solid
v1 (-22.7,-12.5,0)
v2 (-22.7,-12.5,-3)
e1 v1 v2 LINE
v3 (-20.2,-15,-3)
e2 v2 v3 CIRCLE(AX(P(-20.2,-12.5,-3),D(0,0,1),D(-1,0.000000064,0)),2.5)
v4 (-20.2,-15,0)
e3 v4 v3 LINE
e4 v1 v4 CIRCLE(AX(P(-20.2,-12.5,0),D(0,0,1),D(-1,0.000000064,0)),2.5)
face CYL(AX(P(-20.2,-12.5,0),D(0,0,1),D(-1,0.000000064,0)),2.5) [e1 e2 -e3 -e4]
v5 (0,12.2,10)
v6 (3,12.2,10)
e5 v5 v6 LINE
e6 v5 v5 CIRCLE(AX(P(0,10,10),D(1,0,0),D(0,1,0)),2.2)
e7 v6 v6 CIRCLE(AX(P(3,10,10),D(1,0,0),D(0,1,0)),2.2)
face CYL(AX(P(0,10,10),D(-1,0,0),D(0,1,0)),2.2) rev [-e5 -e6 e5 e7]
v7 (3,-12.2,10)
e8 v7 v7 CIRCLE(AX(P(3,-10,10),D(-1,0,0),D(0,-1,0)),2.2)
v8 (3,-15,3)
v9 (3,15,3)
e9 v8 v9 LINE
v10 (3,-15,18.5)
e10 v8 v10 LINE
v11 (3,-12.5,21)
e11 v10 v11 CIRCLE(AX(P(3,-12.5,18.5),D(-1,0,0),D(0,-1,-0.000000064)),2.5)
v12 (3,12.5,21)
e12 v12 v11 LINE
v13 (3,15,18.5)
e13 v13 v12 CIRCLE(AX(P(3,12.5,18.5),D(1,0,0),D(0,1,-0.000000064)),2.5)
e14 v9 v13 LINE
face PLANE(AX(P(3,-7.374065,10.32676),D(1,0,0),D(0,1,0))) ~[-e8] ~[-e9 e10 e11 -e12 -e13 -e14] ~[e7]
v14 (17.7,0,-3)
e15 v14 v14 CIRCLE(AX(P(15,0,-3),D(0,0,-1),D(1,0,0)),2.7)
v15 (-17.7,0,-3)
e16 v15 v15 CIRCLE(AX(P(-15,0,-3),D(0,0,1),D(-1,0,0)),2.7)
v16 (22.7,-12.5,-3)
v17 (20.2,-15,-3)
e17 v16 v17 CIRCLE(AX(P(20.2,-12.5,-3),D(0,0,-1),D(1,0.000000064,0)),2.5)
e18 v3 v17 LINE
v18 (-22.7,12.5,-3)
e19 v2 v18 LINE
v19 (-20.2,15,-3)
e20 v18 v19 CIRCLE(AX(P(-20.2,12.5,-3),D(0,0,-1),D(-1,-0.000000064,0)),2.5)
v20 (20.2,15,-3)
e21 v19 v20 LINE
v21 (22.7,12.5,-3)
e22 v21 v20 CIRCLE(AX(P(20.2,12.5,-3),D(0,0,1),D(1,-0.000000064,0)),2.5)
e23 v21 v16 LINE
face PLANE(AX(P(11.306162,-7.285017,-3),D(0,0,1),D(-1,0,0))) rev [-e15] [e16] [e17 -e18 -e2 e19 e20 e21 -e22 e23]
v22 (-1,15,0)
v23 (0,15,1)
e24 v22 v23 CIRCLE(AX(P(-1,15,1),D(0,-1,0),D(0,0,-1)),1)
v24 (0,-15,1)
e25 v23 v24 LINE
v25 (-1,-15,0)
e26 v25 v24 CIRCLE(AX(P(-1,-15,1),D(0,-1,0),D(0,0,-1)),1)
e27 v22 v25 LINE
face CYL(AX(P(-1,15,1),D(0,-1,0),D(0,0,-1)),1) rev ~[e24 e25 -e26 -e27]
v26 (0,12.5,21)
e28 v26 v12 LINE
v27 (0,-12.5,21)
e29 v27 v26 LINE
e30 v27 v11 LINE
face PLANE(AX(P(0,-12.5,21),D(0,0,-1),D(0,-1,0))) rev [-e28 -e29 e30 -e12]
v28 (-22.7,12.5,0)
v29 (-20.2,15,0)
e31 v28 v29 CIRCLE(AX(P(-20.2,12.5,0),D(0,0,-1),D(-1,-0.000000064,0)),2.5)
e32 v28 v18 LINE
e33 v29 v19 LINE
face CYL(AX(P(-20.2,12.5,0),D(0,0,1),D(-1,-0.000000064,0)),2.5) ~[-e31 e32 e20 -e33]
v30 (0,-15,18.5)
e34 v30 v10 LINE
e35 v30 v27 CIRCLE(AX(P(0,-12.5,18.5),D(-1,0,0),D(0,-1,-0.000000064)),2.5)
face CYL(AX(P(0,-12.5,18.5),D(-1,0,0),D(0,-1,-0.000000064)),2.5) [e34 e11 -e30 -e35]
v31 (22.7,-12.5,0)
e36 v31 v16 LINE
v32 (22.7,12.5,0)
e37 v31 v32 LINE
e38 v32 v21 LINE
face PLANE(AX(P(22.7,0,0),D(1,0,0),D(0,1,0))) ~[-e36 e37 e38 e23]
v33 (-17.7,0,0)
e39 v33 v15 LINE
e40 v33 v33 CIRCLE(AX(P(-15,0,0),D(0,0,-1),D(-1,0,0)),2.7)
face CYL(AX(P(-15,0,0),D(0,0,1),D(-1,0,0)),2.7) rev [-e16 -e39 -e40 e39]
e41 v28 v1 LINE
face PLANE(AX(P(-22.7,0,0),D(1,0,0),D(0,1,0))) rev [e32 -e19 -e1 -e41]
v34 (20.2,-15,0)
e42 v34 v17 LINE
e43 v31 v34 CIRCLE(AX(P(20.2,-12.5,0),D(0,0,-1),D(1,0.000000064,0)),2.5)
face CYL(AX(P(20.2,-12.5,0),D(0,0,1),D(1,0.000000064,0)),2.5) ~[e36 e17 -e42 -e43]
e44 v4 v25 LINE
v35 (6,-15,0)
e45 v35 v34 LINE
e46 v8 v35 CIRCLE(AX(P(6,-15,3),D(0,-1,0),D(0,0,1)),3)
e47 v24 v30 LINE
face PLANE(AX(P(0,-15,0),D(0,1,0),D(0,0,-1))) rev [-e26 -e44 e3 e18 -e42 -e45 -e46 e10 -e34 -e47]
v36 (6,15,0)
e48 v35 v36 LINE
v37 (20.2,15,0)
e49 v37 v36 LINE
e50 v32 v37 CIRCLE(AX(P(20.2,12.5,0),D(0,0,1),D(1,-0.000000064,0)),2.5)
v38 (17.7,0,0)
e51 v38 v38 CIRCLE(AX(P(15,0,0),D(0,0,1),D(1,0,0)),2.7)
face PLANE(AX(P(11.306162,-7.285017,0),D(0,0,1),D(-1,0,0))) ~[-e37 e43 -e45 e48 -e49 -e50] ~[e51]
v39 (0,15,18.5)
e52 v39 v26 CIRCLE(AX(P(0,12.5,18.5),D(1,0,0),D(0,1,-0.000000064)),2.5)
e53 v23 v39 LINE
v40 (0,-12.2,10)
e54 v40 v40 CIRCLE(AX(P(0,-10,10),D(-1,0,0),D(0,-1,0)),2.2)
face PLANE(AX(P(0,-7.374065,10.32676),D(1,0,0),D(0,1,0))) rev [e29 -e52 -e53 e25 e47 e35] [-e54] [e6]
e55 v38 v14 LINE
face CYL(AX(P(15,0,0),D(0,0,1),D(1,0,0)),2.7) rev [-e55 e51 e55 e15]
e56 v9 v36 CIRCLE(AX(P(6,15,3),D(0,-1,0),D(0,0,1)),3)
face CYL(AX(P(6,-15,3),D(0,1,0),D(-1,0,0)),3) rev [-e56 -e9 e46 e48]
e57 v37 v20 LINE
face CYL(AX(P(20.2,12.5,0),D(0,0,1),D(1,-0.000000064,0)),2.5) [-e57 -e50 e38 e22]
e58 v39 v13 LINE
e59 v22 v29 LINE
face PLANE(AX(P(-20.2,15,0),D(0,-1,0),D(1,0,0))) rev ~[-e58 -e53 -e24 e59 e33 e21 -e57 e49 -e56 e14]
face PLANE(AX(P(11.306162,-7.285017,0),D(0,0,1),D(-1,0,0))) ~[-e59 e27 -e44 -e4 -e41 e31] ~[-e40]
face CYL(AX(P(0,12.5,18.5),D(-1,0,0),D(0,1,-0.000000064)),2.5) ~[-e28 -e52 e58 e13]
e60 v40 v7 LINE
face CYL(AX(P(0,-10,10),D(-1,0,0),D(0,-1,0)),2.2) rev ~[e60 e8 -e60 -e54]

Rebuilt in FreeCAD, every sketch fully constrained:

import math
import FreeCAD as App
import Part
import Sketcher


def edges_at(feature, points):
    """Names of the edges that pass closest to the given points."""
    edges = feature.Shape.Edges
    near = lambda p: min(range(len(edges)), key=lambda i: edges[i].distToShape(Part.Vertex(*p))[0])
    return sorted({f"Edge{near(p) + 1}" for p in points})

doc = App.newDocument("Part")
body = doc.addObject("PartDesign::Body", "Body")

sketch1 = doc.addObject("Sketcher::SketchObject", "Sketch")
body.addObject(sketch1)
sketch1.AttachmentSupport = (doc.XY_Plane, [""])
sketch1.MapMode = "FlatFace"
sketch1.addGeometry([
    Part.LineSegment(App.Vector(0, 0, 0), App.Vector(12.3, 0, 0)),
    Part.ArcOfCircle(Part.Circle(App.Vector(15, 0, 0), App.Vector(0, 0, 1), 2.7), math.radians(0), math.radians(180)),
    Part.LineSegment(App.Vector(17.7, 0, 0), App.Vector(22.7, 0, 0)),
    Part.LineSegment(App.Vector(22.7, 0, 0), App.Vector(22.7, 12.5, 0)),
    Part.ArcOfCircle(Part.Circle(App.Vector(20.2, 12.5, 0), App.Vector(0, 0, 1), 2.5), math.radians(-0.000004), math.radians(90.000004)),
    Part.LineSegment(App.Vector(20.2, 15, 0), App.Vector(0, 15, 0)),
    Part.LineSegment(App.Vector(0, 15, 0), App.Vector(0, 0, 0)),
], False)
sketch1.addConstraint([
    Sketcher.Constraint("Coincident", 0, 2, 1, 2),
    Sketcher.Constraint("Coincident", 1, 1, 2, 1),
    Sketcher.Constraint("Coincident", 2, 2, 3, 1),
    Sketcher.Constraint("Tangent", 3, 2, 4, 1),
    Sketcher.Constraint("Tangent", 4, 2, 5, 1),
    Sketcher.Constraint("Coincident", 5, 2, 6, 1),
    Sketcher.Constraint("Coincident", 6, 2, 0, 1),
    Sketcher.Constraint("Horizontal", 0),
    Sketcher.Constraint("Horizontal", 2),
    Sketcher.Constraint("Vertical", 3),
    Sketcher.Constraint("Horizontal", 5),
    Sketcher.Constraint("Vertical", 6),
    Sketcher.Constraint("Coincident", 6, 2, -1, 1),
    Sketcher.Constraint("PointOnObject", 1, 3, -1),
    Sketcher.Constraint("PointOnObject", 1, 1, -1),
    Sketcher.Constraint("Radius", 1, 2.7),
    Sketcher.Constraint("Radius", 4, 2.5),
    Sketcher.Constraint("DistanceX", 2, 1, 2, 2, 5.0),
    Sketcher.Constraint("DistanceY", 6, 2, 6, 1, 15.0),
    Sketcher.Constraint("DistanceX", 0, 1, 0, 2, 12.3),
])
pad1 = doc.addObject("PartDesign::Pad", "Pad")
body.addObject(pad1)
pad1.Profile = sketch1
pad1.Length = 3
pad1.Reversed = True

sketch2 = doc.addObject("Sketcher::SketchObject", "Sketch001")
body.addObject(sketch2)
sketch2.AttachmentSupport = (doc.XY_Plane, [""])
sketch2.MapMode = "FlatFace"
sketch2.addGeometry([
    Part.LineSegment(App.Vector(0, 0, 0), App.Vector(-12.3, 0, 0)),
    Part.ArcOfCircle(Part.Circle(App.Vector(-15, 0, 0), App.Vector(0, 0, 1), 2.7), math.radians(0), math.radians(180)),
    Part.LineSegment(App.Vector(-17.7, 0, 0), App.Vector(-22.7, 0, 0)),
    Part.LineSegment(App.Vector(-22.7, 0, 0), App.Vector(-22.7, 12.5, 0)),
    Part.ArcOfCircle(Part.Circle(App.Vector(-20.2, 12.5, 0), App.Vector(0, 0, 1), 2.5), math.radians(89.999996), math.radians(180.000004)),
    Part.LineSegment(App.Vector(-20.2, 15, 0), App.Vector(0, 15, 0)),
    Part.LineSegment(App.Vector(0, 15, 0), App.Vector(0, 0, 0)),
], False)
sketch2.addConstraint([
    Sketcher.Constraint("Coincident", 0, 2, 1, 1),
    Sketcher.Constraint("Coincident", 1, 2, 2, 1),
    Sketcher.Constraint("Coincident", 2, 2, 3, 1),
    Sketcher.Constraint("Tangent", 3, 2, 4, 2),
    Sketcher.Constraint("Tangent", 4, 1, 5, 1),
    Sketcher.Constraint("Coincident", 5, 2, 6, 1),
    Sketcher.Constraint("Coincident", 6, 2, 0, 1),
    Sketcher.Constraint("Horizontal", 0),
    Sketcher.Constraint("Horizontal", 2),
    Sketcher.Constraint("Vertical", 3),
    Sketcher.Constraint("Horizontal", 5),
    Sketcher.Constraint("Vertical", 6),
    Sketcher.Constraint("Coincident", 6, 2, -1, 1),
    Sketcher.Constraint("PointOnObject", 1, 3, -1),
    Sketcher.Constraint("PointOnObject", 1, 2, -1),
    Sketcher.Constraint("Radius", 1, 2.7),
    Sketcher.Constraint("Radius", 4, 2.5),
    Sketcher.Constraint("DistanceX", 2, 2, 2, 1, 5.0),
    Sketcher.Constraint("DistanceY", 6, 2, 6, 1, 15.0),
    Sketcher.Constraint("DistanceX", 0, 2, 0, 1, 12.3),
])
pad2 = doc.addObject("PartDesign::Pad", "Pad001")
body.addObject(pad2)
pad2.Profile = sketch2
pad2.Length = 3
pad2.Reversed = True
doc.recompute()

mirrored = doc.addObject("PartDesign::Mirrored", "Mirrored")
body.addObject(mirrored)
mirrored.Originals = [pad1, pad2]
mirrored.MirrorPlane = (doc.XZ_Plane, [""])
body.Tip = mirrored

sketch3 = doc.addObject("Sketcher::SketchObject", "Sketch002")
body.addObject(sketch3)
sketch3.AttachmentSupport = (doc.YZ_Plane, [""])
sketch3.MapMode = "FlatFace"
sketch3.addGeometry([
    Part.LineSegment(App.Vector(0, 0, 0), App.Vector(15, 0, 0)),
    Part.LineSegment(App.Vector(15, 0, 0), App.Vector(15, 18.5, 0)),
    Part.ArcOfCircle(Part.Circle(App.Vector(12.5, 18.5, 0), App.Vector(0, 0, 1), 2.5), math.radians(-0.000004), math.radians(90.000004)),
    Part.LineSegment(App.Vector(12.5, 21, 0), App.Vector(0, 21, 0)),
    Part.LineSegment(App.Vector(0, 21, 0), App.Vector(0, 0, 0)),
    Part.Circle(App.Vector(10, 10, 0), App.Vector(0, 0, 1), 2.2),
], False)
sketch3.addConstraint([
    Sketcher.Constraint("Coincident", 0, 2, 1, 1),
    Sketcher.Constraint("Tangent", 1, 2, 2, 1),
    Sketcher.Constraint("Tangent", 2, 2, 3, 1),
    Sketcher.Constraint("Coincident", 3, 2, 4, 1),
    Sketcher.Constraint("Coincident", 4, 2, 0, 1),
    Sketcher.Constraint("Horizontal", 0),
    Sketcher.Constraint("Vertical", 1),
    Sketcher.Constraint("Horizontal", 3),
    Sketcher.Constraint("Vertical", 4),
    Sketcher.Constraint("Coincident", 4, 2, -1, 1),
    Sketcher.Constraint("Diameter", 5, 4.4),
    Sketcher.Constraint("Radius", 2, 2.5),
    Sketcher.Constraint("DistanceX", 0, 1, 0, 2, 15.0),
    Sketcher.Constraint("DistanceY", 4, 2, 4, 1, 21.0),
    Sketcher.Constraint("DistanceX", -1, 1, 5, 3, 10.0),
    Sketcher.Constraint("DistanceY", -1, 1, 5, 3, 10.0),
])
pad3 = doc.addObject("PartDesign::Pad", "Pad002")
body.addObject(pad3)
pad3.Profile = sketch3
pad3.Length = 3
doc.recompute()

mirrored2 = doc.addObject("PartDesign::Mirrored", "Mirrored001")
body.addObject(mirrored2)
mirrored2.Originals = [pad3]
mirrored2.MirrorPlane = (doc.XZ_Plane, [""])
body.Tip = mirrored2
doc.recompute()

fillet = doc.addObject("PartDesign::Fillet", "Fillet")
body.addObject(fillet)
fillet.Base = (mirrored2, edges_at(mirrored2, [(0, 0, 0)]))
fillet.Radius = 1
doc.recompute()

fillet2 = doc.addObject("PartDesign::Fillet", "Fillet001")
body.addObject(fillet2)
fillet2.Base = (fillet, edges_at(fillet, [(3, 0, 0)]))
fillet2.Radius = 3

doc.recompute()
